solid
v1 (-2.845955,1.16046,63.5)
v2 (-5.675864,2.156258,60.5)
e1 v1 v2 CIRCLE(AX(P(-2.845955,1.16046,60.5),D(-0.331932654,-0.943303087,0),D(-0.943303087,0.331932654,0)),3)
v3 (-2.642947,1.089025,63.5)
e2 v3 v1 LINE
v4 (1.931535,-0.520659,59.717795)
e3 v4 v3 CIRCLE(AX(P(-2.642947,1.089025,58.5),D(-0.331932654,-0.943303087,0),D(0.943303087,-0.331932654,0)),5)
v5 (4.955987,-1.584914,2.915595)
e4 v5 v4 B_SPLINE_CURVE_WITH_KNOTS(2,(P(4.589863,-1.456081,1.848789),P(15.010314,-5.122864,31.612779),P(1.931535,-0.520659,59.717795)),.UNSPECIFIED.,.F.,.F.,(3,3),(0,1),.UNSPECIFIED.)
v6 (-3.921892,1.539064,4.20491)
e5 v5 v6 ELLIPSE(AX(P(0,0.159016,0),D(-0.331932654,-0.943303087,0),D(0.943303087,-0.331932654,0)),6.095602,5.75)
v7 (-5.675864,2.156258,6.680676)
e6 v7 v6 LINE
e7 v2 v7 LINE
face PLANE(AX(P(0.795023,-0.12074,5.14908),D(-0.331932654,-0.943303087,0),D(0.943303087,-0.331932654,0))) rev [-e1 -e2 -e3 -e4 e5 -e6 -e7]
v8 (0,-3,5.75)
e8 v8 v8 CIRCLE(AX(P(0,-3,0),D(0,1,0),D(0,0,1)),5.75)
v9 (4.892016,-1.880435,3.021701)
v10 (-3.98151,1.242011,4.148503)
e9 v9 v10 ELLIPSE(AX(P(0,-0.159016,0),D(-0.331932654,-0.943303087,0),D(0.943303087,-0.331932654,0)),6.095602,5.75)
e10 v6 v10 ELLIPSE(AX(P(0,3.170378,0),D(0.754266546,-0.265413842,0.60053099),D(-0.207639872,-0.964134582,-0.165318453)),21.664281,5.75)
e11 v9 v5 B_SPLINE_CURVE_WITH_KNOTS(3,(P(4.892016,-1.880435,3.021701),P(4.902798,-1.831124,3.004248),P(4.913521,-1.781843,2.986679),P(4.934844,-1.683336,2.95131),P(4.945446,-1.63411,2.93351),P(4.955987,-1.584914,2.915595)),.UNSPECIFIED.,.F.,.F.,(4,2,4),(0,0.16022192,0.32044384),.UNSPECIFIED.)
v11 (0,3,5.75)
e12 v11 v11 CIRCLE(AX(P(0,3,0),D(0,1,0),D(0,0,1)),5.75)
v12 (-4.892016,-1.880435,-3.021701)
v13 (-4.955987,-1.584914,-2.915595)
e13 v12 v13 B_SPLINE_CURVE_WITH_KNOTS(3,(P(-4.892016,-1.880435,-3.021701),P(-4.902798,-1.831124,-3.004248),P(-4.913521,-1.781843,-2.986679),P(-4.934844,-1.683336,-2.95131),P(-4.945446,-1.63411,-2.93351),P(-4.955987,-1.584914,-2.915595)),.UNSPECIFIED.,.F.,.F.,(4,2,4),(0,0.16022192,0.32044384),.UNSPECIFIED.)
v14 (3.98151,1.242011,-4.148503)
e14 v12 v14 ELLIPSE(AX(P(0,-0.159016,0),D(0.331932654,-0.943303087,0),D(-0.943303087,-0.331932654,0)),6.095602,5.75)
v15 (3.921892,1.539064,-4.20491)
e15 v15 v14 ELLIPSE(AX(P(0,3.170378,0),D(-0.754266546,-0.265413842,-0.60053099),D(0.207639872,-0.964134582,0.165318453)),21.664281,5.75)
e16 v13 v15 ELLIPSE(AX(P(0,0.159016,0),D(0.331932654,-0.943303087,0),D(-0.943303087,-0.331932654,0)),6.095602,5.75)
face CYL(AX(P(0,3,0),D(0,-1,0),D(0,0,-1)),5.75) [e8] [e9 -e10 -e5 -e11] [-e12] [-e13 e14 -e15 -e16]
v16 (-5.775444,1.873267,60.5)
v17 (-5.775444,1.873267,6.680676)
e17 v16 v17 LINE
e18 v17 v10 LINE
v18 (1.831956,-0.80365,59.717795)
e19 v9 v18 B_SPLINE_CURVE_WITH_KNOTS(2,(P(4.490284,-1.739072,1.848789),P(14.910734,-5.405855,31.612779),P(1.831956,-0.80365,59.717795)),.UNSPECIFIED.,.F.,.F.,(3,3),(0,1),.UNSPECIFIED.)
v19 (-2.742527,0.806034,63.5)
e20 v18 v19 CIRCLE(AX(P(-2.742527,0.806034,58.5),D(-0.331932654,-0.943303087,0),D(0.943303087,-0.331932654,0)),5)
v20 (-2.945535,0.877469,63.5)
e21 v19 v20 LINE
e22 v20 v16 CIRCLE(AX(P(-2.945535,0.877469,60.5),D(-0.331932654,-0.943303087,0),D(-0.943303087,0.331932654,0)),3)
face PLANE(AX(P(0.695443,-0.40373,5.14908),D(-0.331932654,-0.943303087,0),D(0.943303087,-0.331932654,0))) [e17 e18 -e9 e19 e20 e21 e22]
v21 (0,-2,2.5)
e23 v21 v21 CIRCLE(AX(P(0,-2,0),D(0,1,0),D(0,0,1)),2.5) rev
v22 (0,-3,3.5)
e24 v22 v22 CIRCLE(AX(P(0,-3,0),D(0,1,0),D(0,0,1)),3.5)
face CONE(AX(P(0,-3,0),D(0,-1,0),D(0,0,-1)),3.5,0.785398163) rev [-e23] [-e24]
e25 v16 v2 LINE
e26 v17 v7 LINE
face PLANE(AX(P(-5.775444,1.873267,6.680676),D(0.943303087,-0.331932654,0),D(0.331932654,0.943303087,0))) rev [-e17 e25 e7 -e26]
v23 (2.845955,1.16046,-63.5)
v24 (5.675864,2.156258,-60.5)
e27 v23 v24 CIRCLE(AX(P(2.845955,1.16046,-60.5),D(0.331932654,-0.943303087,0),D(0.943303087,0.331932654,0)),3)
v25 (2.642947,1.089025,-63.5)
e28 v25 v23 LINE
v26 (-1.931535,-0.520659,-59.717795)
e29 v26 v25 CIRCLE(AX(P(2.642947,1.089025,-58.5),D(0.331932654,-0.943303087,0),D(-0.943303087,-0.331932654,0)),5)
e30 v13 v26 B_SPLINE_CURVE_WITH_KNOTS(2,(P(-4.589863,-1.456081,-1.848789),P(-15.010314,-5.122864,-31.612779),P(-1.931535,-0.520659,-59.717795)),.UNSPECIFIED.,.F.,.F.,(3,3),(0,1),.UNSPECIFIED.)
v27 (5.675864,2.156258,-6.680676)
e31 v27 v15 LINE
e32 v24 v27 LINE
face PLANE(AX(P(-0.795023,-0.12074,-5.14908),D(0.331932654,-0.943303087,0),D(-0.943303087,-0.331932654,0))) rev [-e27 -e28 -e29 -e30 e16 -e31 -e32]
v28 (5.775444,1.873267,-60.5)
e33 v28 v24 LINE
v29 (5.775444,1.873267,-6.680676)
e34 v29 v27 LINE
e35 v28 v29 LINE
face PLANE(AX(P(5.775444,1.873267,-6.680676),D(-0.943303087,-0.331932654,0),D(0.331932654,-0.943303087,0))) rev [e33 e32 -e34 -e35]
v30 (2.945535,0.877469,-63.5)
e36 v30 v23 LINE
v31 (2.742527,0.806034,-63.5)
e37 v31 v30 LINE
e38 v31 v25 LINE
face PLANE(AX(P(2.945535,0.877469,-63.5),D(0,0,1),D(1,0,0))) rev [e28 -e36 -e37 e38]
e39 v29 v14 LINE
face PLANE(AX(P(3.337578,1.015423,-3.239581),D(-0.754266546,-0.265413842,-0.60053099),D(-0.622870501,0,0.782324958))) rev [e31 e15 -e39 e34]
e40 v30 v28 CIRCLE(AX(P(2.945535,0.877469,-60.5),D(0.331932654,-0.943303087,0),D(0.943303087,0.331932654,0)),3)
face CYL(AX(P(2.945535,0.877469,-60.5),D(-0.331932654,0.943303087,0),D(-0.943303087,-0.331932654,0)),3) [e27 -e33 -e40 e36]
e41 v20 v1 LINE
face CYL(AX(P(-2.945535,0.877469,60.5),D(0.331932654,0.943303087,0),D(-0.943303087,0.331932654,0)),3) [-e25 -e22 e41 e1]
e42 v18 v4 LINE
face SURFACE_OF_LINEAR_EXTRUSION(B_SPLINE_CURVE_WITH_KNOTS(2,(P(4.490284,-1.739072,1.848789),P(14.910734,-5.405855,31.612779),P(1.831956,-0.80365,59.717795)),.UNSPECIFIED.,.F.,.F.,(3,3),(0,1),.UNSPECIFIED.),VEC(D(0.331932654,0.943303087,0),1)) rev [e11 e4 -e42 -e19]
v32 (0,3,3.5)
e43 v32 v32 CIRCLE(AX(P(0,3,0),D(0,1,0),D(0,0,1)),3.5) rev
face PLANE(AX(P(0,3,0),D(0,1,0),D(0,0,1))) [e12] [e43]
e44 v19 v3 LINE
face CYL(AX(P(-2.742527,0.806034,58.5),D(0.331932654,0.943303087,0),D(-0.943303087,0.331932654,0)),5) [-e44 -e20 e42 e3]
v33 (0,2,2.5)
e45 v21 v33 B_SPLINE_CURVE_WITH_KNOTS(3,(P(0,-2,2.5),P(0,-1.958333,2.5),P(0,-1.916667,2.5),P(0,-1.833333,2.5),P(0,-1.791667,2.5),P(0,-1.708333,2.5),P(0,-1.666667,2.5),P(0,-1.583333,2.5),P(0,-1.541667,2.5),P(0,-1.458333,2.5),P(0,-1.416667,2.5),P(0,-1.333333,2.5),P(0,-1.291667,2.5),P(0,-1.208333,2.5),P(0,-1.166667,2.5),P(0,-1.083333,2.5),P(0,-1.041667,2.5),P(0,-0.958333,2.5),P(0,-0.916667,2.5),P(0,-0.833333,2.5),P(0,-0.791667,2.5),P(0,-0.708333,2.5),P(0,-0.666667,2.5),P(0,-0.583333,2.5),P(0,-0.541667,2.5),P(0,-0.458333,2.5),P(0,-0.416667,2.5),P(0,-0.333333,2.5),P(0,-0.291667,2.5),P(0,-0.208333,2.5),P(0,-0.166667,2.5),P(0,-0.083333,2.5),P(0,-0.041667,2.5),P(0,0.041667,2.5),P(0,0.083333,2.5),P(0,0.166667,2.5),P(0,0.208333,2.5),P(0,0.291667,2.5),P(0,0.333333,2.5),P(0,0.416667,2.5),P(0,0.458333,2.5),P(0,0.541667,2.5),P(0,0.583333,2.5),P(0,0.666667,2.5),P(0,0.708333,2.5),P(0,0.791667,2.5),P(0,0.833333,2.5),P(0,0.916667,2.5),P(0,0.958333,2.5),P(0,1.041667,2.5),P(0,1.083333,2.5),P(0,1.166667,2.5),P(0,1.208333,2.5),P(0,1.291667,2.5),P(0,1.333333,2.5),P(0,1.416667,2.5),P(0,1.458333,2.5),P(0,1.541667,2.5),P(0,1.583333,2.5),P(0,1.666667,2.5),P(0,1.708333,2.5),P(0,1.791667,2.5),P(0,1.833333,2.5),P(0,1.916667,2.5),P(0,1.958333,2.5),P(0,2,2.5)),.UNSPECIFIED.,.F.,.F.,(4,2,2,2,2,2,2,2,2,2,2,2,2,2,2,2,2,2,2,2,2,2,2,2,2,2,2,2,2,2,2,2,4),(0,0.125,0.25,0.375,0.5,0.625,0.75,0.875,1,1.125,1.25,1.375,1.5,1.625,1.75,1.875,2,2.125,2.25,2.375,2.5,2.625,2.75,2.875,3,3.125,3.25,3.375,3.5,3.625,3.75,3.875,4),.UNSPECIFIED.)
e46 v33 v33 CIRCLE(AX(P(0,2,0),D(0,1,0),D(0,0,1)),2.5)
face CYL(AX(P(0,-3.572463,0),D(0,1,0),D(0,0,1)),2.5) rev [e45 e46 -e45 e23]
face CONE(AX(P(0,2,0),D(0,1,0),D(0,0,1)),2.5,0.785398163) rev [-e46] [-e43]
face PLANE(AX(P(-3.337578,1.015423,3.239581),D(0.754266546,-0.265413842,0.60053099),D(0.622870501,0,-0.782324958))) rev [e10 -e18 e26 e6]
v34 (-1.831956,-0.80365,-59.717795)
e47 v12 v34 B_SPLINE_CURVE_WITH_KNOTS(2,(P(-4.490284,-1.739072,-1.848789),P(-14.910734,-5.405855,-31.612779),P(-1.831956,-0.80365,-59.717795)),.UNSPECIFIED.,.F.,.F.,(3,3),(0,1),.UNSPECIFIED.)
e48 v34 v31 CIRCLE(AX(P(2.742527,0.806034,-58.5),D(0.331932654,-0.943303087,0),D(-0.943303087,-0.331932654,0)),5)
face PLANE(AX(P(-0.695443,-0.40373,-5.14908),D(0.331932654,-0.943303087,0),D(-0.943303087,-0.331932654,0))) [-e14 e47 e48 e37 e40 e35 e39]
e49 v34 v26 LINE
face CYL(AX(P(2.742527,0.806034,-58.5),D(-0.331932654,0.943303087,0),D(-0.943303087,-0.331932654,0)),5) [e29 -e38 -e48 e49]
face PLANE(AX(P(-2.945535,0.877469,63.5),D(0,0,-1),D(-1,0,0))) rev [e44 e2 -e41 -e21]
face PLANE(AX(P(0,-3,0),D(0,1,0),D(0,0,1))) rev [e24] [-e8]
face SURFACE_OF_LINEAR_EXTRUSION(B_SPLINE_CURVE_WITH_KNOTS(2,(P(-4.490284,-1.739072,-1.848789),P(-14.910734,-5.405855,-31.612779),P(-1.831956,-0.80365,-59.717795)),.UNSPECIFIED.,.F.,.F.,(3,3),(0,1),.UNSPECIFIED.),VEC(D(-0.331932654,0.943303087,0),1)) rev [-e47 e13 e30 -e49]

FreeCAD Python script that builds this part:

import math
import FreeCAD as App
import Part
import Sketcher

V = App.Vector


def edges_at(feature, points):
    """Names of the edges that pass closest to the given points."""
    edges = feature.Shape.Edges
    near = lambda p: min(range(len(edges)), key=lambda i: edges[i].distToShape(Part.Vertex(*p))[0])
    return sorted({f"Edge{near(p) + 1}" for p in points})

doc = App.newDocument("Part")
params = doc.addObject("Spreadsheet::Sheet", "Params")
for row, (alias, value) in enumerate([
    ("sketch1_diameter", "11.5 mm"),
    ("pad1_length", "6 mm"),
    ("sketch2_radius", "5 mm"),
    ("sketch2_radius2", "3 mm"),
    ("pad2_length", "0.3 mm"),
    ("sketch3_diameter", "5 mm"),
    ("chamfer_size", "1 mm"),
], start=1):
    params.set(f"A{row}", alias)
    params.set(f"B{row}", "=" + value)
    params.setAlias(f"B{row}", alias)

body = doc.addObject("PartDesign::Body", "Body")

# Sketch on XZ plane
sketch1 = doc.addObject("Sketcher::SketchObject", "Sketch")
body.addObject(sketch1)
sketch1.AttachmentSupport = (doc.XZ_Plane, [""])
sketch1.MapMode = "FlatFace"
sketch1.addGeometry(Part.Circle(V(0, 0, 0), V(0, 0, 1), 6), False)
sketch1.addConstraint([
    Sketcher.Constraint("Coincident", 0, 3, -1, 1),
    Sketcher.Constraint("Diameter", 0, 11.5),
])
sketch1.setExpression("Constraints[1]", "Params.sketch1_diameter")
pad1 = doc.addObject("PartDesign::Pad", "Pad")
body.addObject(pad1)
pad1.Profile = sketch1
pad1.setExpression("Length", "Params.pad1_length")
pad1.Midplane = True

# Sketch on an angled plane
sketch2 = doc.addObject("Sketcher::SketchObject", "Sketch001")
body.addObject(sketch2)
sketch2.Placement = App.Placement(V(0, 0, 0), App.Rotation(V(0.943303087, -0.331932654, 0), V(0, 0, 1.000000001), V(-0.331932654, -0.943303087, 0), "ZXY"))
sketch2.addGeometry([
    Part.LineSegment(V(-6.069792, 6.680676, 0), V(-3.4854, 3.239581, 0)),  # 0
    Part.BSplineCurve([V(-3.4854, 3.239581, 0), V(0.916273, 7.753975, 0), V(4.812953, 1.848789, 0)], [3, 3], [0, 1], False, 2, [1, 1, 1], False),  # 1
    Part.BSplineCurve([V(1.994847, 59.717795, 0), V(15.859721, 31.612779, 0), V(4.812953, 1.848789, 0)], [3, 3], [0, 1], False, 2, [1, 1, 1], False),  # 2
    Part.ArcOfCircle(Part.Circle(V(-2.854583, 58.5, 0), V(0, 0, 1), 5), math.radians(14.096693), math.radians(90)),  # 3
    Part.LineSegment(V(-2.854583, 63.5, 0), V(-3.069792, 63.5, 0)),  # 4
    Part.ArcOfCircle(Part.Circle(V(-3.069792, 60.5, 0), V(0, 0, 1), 3), math.radians(90), math.radians(180)),  # 5
    Part.LineSegment(V(-6.069792, 60.5, 0), V(-6.069792, 6.680676, 0)),  # 6
], False)
sketch2.addConstraint([
    Sketcher.Constraint("Block", 1),
    Sketcher.Constraint("Block", 2),
    Sketcher.Constraint("Coincident", 0, 2, 1, 1),
    Sketcher.Constraint("Coincident", 2, 1, 3, 1),
    Sketcher.Constraint("Tangent", 3, 2, 4, 1),
    Sketcher.Constraint("Tangent", 4, 2, 5, 1),
    Sketcher.Constraint("Tangent", 5, 2, 6, 1),
    Sketcher.Constraint("Coincident", 6, 2, 0, 1),
    Sketcher.Constraint("Horizontal", 4),
    Sketcher.Constraint("Vertical", 6),
    Sketcher.Constraint("Radius", 3, 5.0),
    Sketcher.Constraint("Radius", 5, 3.0),
    Sketcher.Constraint("DistanceY", -1, 1, 3, 3, 58.5),
    Sketcher.Constraint("DistanceX", 4, 2, 4, 1, 0.215209),
    Sketcher.Constraint("DistanceY", 6, 2, 6, 1, 53.819324),
])
sketch2.setExpression("Constraints[10]", "Params.sketch2_radius")
sketch2.setExpression("Constraints[11]", "Params.sketch2_radius2")
pad2 = doc.addObject("PartDesign::Pad", "Pad001")
body.addObject(pad2)
pad2.Profile = sketch2
pad2.setExpression("Length", "Params.pad2_length")
pad2.Midplane = True
doc.recompute()

polarpattern = doc.addObject("PartDesign::PolarPattern", "PolarPattern")
body.addObject(polarpattern)
polarpattern.Originals = [pad2]
polarpattern.Axis = (doc.Y_Axis, [""])
polarpattern.Angle = 360
polarpattern.Occurrences = 2
body.Tip = polarpattern

# Sketch on XZ plane
sketch3 = doc.addObject("Sketcher::SketchObject", "Sketch002")
body.addObject(sketch3)
sketch3.AttachmentSupport = (doc.XZ_Plane, [""])
sketch3.MapMode = "FlatFace"
sketch3.AttachmentOffset = App.Placement(V(0, 0, -3), App.Rotation())
sketch3.addGeometry(Part.Circle(V(0, 0, 0), V(0, 0, 1), 2.5), False)
sketch3.addConstraint([
    Sketcher.Constraint("Coincident", 0, 3, -1, 1),
    Sketcher.Constraint("Diameter", 0, 5.0),
])
sketch3.setExpression("Constraints[1]", "Params.sketch3_diameter")
pocket1 = doc.addObject("PartDesign::Pocket", "Pocket")
body.addObject(pocket1)
pocket1.Profile = sketch3
pocket1.Type = "ThroughAll"
pocket1.Reversed = True
doc.recompute()

chamfer = doc.addObject("PartDesign::Chamfer", "Chamfer")
body.addObject(chamfer)
chamfer.Base = (pocket1, edges_at(pocket1, [(0, -3, -2.5), (0, 3, -2.5)]))
chamfer.setExpression("Size", "Params.chamfer_size")

doc.recompute()
